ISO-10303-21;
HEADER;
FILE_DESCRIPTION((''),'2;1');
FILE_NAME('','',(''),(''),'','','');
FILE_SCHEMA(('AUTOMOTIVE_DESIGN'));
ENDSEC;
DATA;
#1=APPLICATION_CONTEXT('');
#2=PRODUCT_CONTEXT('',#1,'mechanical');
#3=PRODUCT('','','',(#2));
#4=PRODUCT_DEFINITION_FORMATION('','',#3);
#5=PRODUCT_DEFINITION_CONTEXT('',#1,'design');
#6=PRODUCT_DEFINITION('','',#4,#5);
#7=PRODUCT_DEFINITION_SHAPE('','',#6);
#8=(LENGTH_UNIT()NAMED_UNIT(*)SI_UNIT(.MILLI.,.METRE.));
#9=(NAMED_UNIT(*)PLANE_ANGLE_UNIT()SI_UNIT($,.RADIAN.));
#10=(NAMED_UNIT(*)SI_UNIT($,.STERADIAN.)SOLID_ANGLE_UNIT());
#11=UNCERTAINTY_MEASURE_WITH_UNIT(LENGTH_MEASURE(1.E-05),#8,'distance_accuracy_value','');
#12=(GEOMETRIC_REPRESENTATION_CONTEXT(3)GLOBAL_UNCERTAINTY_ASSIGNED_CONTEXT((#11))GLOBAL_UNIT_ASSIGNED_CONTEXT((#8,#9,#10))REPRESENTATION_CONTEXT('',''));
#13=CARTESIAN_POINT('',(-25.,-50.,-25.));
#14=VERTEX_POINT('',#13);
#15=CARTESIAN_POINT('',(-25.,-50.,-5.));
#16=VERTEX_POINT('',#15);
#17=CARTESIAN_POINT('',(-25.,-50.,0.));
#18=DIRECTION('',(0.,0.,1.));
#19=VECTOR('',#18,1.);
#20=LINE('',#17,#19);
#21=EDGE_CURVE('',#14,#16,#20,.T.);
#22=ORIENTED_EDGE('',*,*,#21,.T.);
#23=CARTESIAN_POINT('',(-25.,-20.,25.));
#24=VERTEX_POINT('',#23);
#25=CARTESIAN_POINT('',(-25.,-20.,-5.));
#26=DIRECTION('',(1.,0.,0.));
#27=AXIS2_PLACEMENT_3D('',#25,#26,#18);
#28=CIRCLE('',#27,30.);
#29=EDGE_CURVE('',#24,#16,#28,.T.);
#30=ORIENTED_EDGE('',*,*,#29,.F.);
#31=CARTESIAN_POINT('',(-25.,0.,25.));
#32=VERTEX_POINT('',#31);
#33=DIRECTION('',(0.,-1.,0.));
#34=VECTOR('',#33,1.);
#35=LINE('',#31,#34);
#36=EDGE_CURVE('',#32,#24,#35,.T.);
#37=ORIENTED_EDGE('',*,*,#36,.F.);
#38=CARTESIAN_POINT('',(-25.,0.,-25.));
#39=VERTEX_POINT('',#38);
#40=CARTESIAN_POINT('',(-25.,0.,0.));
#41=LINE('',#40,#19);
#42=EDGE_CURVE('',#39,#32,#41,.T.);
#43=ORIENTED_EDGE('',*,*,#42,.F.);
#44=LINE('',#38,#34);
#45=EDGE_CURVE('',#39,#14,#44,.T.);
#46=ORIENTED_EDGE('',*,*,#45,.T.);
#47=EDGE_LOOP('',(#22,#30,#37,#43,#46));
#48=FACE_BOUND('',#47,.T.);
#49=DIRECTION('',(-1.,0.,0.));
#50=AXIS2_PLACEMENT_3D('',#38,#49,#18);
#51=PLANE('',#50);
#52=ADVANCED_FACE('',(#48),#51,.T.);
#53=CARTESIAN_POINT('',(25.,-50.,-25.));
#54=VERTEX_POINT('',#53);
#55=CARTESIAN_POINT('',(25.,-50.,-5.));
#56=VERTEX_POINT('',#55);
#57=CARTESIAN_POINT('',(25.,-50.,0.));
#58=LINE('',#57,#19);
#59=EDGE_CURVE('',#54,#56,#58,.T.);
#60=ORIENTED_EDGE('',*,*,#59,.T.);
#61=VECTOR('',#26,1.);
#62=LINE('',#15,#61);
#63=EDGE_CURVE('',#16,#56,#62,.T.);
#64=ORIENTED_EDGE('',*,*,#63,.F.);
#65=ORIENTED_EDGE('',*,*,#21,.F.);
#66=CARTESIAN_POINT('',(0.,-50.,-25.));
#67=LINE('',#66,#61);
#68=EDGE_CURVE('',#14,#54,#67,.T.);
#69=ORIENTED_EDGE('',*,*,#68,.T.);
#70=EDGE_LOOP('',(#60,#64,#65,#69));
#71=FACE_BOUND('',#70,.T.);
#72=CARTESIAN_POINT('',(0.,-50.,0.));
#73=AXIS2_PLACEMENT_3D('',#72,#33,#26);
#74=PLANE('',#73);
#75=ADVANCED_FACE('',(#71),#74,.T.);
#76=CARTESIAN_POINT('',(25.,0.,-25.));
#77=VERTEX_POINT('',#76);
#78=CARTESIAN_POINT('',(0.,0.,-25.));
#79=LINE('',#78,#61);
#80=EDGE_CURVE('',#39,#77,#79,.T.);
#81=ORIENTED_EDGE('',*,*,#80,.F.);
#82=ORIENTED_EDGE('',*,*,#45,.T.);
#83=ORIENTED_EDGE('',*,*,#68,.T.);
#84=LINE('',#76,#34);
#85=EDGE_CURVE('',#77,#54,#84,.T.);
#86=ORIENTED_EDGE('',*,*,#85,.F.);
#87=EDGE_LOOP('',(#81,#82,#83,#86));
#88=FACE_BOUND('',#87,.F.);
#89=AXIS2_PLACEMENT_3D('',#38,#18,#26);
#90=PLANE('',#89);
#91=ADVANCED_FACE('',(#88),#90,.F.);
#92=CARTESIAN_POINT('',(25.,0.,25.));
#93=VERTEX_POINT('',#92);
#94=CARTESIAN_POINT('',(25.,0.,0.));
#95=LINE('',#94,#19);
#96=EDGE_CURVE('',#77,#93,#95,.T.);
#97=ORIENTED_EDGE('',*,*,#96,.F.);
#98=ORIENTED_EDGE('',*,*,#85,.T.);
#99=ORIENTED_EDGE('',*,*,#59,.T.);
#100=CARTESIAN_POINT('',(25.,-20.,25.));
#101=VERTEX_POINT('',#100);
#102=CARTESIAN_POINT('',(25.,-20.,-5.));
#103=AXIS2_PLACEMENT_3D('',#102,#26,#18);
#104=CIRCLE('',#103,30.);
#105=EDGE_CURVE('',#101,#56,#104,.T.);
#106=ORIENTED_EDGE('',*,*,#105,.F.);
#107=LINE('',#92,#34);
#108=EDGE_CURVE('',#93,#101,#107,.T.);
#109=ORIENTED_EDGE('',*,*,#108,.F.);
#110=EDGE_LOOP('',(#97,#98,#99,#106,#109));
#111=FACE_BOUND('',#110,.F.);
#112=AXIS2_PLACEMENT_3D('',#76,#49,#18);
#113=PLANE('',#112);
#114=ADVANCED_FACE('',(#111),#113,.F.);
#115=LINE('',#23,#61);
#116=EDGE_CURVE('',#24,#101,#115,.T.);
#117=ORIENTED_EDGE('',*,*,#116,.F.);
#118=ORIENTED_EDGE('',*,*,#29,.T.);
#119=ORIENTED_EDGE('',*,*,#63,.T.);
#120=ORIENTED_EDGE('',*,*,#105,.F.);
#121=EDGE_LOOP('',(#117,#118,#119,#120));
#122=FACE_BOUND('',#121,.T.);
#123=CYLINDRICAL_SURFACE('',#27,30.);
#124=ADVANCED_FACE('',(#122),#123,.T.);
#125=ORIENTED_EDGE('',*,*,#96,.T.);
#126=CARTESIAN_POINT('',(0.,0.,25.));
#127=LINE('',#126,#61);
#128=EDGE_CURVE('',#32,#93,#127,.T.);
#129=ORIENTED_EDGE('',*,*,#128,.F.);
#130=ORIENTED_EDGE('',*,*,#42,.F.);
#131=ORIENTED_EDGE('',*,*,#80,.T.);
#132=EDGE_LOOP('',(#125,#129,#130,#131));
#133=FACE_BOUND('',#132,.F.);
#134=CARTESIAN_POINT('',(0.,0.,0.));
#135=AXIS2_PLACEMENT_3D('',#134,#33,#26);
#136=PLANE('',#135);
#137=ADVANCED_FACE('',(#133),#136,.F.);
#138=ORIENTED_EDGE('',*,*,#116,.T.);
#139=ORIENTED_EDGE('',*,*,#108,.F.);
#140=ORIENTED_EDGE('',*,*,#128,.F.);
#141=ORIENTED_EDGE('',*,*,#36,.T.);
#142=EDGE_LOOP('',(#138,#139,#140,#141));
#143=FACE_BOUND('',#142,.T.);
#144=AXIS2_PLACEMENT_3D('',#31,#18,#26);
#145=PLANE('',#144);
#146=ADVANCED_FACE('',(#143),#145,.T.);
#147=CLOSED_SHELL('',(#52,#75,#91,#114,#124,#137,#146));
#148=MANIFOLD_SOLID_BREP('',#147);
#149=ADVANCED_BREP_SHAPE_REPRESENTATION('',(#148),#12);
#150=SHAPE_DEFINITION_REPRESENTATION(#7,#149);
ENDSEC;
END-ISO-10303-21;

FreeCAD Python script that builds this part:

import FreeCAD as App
import Part
import Sketcher

V = App.Vector


def edges_at(feature, points):
    """Names of the edges that pass closest to the given points."""
    edges = feature.Shape.Edges
    near = lambda p: min(range(len(edges)), key=lambda i: edges[i].distToShape(Part.Vertex(*p))[0])
    return sorted({f"Edge{near(p) + 1}" for p in points})

doc = App.newDocument("Part")
body = doc.addObject("PartDesign::Body", "Body")

# Sketch on XZ plane
sketch1 = body.newObject("Sketcher::SketchObject", "Sketch")
sketch1.AttachmentSupport = (doc.getObject("XZ_Plane"), [""])
sketch1.MapMode = "FlatFace"
sketch1.addGeometry(Part.LineSegment(V(-25, 25, 0), V(-25, -25, 0)), False)
sketch1.addGeometry(Part.LineSegment(V(-25, -25, 0), V(25, -25, 0)), False)
sketch1.addGeometry(Part.LineSegment(V(25, -25, 0), V(25, 25, 0)), False)
sketch1.addGeometry(Part.LineSegment(V(25, 25, 0), V(-25, 25, 0)), False)
sketch1.addConstraint(Sketcher.Constraint("Coincident", 0, 2, 1, 1))
sketch1.addConstraint(Sketcher.Constraint("Coincident", 1, 2, 2, 1))
sketch1.addConstraint(Sketcher.Constraint("Coincident", 2, 2, 3, 1))
sketch1.addConstraint(Sketcher.Constraint("Coincident", 3, 2, 0, 1))
sketch1.addConstraint(Sketcher.Constraint("Vertical", 0))
sketch1.addConstraint(Sketcher.Constraint("Horizontal", 1))
sketch1.addConstraint(Sketcher.Constraint("Vertical", 2))
sketch1.addConstraint(Sketcher.Constraint("Horizontal", 3))
sketch1.addConstraint(Sketcher.Constraint("Symmetric", 0, 2, 2, 2, -1, 1))
sketch1.addConstraint(Sketcher.Constraint("Equal", 3, 0))
sketch1.addConstraint(Sketcher.Constraint("DistanceX", 1, 1, 1, 2, 50.0))
pad1 = body.newObject("PartDesign::Pad", "Pad")
pad1.Profile = sketch1
pad1.Length = 50
doc.recompute()

fillet = body.newObject("PartDesign::Fillet", "Fillet")
fillet.Base = (pad1, edges_at(pad1, [(0, -50, 25)]))
fillet.Radius = 30

doc.recompute()
